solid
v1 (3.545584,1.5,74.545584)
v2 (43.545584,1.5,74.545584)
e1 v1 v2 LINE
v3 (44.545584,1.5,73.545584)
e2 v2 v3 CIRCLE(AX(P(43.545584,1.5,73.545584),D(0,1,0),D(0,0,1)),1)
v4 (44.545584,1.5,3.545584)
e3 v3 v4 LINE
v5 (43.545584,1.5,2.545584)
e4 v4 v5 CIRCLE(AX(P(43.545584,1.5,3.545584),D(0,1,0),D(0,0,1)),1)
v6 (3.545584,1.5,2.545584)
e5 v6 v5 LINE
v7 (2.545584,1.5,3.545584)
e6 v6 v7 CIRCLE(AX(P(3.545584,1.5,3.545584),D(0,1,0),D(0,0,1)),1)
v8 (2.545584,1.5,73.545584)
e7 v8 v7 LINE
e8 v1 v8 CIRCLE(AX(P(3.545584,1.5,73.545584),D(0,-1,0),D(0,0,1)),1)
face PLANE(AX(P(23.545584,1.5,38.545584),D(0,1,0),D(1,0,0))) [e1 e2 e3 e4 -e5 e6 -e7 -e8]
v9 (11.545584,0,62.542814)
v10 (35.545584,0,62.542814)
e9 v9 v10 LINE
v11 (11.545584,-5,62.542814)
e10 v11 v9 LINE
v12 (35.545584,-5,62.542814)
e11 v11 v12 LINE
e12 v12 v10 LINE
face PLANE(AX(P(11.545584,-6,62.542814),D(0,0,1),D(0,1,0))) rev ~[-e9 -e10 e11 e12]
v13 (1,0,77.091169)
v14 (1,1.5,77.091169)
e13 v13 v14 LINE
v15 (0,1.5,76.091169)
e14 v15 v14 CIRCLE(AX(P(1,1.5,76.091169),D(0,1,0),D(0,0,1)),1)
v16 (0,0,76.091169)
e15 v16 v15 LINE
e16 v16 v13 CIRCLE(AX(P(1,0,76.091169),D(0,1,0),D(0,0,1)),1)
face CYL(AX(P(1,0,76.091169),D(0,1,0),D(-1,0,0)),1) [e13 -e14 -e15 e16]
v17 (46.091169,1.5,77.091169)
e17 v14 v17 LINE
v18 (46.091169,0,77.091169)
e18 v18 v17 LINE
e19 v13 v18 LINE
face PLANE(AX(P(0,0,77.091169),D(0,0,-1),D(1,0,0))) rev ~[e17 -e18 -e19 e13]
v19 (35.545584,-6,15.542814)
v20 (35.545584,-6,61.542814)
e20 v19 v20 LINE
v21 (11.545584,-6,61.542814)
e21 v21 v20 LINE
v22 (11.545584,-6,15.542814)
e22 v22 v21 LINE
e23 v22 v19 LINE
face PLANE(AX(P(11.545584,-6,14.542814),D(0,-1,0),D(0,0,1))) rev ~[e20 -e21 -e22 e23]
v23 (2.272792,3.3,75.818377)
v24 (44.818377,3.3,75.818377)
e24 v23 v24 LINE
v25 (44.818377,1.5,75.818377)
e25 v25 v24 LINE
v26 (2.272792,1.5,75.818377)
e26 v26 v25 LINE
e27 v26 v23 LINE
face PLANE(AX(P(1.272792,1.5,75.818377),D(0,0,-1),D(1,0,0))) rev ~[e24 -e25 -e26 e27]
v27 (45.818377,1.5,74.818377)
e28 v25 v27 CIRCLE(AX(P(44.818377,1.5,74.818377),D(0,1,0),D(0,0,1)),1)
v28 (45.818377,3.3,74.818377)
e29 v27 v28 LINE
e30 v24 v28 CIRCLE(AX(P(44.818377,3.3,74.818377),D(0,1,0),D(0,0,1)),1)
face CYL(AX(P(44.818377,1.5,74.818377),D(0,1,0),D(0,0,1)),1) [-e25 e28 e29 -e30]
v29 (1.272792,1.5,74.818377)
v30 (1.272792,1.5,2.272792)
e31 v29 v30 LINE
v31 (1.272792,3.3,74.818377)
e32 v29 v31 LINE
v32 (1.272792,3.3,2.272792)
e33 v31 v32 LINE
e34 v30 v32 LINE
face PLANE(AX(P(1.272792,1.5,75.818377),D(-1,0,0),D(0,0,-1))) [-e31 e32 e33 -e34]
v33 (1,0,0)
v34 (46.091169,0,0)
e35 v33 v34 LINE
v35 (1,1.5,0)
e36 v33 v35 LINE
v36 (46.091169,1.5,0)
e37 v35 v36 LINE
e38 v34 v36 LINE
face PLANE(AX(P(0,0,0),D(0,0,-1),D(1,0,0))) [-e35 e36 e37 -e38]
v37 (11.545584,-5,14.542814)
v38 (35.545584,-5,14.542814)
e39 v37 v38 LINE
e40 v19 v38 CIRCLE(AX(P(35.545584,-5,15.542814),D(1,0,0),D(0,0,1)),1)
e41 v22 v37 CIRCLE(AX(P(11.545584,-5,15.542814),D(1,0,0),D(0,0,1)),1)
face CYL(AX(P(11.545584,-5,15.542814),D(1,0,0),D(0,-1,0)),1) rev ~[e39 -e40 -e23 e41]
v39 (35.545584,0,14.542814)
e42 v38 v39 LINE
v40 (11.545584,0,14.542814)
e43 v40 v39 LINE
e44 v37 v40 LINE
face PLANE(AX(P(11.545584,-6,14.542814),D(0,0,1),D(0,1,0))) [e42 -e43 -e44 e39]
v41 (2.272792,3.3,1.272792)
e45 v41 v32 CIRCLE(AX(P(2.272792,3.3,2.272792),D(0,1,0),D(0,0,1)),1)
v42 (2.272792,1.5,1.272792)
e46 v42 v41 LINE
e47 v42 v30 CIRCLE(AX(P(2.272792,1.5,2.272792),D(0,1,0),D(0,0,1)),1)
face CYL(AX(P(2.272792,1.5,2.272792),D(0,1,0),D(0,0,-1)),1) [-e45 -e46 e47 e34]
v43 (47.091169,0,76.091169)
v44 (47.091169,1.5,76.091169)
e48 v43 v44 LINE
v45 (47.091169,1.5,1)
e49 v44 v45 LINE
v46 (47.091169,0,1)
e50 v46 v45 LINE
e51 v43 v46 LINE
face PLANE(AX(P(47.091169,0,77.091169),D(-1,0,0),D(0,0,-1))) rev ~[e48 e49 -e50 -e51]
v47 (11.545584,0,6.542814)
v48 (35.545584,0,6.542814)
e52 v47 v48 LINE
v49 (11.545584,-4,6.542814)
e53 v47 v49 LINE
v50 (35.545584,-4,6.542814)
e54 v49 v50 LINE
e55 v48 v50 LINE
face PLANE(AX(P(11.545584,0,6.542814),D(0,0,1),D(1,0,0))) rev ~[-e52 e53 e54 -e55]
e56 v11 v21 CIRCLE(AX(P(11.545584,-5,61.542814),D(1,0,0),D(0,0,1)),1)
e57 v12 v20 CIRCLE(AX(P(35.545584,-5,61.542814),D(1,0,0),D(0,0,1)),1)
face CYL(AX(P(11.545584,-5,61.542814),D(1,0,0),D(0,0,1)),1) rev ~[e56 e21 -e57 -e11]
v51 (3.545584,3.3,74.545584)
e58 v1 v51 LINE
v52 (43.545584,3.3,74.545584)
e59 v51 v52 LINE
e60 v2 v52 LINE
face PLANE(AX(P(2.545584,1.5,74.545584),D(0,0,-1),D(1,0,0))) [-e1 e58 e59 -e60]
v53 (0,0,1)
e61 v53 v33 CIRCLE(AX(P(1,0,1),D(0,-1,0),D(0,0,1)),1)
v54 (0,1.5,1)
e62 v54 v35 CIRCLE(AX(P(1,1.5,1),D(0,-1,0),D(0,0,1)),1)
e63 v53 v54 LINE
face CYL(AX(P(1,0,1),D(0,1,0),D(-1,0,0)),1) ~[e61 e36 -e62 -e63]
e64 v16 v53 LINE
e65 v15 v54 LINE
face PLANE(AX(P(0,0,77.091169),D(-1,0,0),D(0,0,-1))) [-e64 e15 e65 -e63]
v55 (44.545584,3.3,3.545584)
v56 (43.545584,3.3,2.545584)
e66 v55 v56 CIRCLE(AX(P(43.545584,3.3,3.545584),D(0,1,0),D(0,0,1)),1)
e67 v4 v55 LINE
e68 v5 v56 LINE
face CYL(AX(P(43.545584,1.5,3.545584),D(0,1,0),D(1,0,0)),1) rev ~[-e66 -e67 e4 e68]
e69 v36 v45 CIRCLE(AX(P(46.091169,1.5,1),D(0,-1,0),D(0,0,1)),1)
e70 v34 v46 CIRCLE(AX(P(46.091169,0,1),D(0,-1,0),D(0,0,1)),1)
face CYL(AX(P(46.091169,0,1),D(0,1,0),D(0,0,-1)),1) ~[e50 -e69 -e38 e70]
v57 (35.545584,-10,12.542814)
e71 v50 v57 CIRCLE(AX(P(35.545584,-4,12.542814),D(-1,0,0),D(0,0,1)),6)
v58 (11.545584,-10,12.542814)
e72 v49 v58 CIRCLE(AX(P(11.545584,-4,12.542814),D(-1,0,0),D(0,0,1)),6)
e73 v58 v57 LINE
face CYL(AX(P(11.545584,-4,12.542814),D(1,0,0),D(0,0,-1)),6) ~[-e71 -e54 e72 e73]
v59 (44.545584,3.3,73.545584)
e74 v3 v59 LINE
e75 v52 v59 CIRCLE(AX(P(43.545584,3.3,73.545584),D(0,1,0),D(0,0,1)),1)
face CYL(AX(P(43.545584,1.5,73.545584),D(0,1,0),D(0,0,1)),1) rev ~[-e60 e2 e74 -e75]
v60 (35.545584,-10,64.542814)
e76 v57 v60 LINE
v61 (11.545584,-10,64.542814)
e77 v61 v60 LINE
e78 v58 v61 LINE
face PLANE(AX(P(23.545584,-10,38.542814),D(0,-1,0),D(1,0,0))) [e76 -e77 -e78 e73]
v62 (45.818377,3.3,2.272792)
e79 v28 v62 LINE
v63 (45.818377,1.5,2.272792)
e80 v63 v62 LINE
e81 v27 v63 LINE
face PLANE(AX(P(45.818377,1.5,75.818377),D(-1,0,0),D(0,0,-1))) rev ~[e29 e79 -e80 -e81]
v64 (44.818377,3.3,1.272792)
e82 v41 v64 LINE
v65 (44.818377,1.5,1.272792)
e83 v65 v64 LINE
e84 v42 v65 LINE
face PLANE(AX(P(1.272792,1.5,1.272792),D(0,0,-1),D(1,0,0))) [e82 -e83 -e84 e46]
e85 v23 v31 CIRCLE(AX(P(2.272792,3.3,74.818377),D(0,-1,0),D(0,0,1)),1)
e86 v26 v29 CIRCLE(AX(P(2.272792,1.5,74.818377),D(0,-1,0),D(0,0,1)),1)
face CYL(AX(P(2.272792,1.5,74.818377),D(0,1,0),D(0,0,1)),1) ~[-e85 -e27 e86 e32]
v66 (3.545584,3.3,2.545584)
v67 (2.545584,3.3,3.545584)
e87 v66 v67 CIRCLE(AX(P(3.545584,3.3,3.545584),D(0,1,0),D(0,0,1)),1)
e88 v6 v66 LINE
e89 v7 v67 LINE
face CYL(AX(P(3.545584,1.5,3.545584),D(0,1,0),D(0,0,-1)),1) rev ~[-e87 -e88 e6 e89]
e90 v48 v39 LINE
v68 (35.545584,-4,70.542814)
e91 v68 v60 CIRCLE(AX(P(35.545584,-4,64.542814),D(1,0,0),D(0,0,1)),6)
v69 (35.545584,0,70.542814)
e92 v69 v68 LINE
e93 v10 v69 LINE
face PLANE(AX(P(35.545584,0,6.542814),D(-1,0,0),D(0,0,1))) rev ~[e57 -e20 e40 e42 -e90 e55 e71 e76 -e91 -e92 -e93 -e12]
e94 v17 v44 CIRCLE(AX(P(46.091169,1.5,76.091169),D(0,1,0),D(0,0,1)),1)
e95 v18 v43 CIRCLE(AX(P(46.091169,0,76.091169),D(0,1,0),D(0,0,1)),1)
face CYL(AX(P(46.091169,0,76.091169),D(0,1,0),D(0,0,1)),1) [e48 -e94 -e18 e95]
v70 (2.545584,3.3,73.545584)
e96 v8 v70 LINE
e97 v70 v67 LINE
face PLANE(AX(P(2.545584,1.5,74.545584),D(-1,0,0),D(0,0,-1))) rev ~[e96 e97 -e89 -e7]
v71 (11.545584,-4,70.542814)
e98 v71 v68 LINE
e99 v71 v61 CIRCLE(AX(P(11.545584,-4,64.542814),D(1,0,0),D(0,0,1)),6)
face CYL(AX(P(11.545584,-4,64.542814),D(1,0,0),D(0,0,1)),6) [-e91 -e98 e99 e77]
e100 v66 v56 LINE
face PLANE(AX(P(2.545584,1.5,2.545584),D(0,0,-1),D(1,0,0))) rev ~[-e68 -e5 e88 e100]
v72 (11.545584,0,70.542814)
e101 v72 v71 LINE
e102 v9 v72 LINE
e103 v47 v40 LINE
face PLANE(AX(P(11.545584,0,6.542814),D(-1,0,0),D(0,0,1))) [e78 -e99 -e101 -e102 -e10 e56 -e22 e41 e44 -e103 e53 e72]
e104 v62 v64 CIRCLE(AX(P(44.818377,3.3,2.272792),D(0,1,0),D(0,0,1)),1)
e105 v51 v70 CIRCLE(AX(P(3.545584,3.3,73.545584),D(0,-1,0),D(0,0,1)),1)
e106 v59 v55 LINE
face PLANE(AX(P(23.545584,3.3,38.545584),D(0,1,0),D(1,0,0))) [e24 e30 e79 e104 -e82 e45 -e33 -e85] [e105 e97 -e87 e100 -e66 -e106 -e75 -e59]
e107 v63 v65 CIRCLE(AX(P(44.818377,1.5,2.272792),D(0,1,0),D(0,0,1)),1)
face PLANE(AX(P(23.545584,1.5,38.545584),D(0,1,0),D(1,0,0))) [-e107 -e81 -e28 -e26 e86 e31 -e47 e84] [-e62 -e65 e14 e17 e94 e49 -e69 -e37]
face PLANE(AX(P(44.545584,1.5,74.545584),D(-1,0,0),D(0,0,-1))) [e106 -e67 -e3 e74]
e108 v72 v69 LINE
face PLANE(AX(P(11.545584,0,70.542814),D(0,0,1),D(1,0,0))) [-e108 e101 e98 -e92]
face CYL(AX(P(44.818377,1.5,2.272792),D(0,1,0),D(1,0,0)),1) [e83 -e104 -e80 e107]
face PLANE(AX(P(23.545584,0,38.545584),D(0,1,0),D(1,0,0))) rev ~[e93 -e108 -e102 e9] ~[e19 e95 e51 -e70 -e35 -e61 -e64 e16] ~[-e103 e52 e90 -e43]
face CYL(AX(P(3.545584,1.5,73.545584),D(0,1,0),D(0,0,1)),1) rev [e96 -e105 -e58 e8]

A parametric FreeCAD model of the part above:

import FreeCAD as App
import Part
import Sketcher


def edges_at(feature, points):
    """Names of the edges that pass closest to the given points."""
    edges = feature.Shape.Edges
    near = lambda p: min(range(len(edges)), key=lambda i: edges[i].distToShape(Part.Vertex(*p))[0])
    return sorted({f"Edge{near(p) + 1}" for p in points})

doc = App.newDocument("Part")
body = doc.addObject("PartDesign::Body", "Body")

sketch1 = body.newObject("Sketcher::SketchObject", "Sketch")
sketch1.AttachmentSupport = (doc.getObject("XZ_Plane"), [""])
sketch1.MapMode = "FlatFace"
sketch1.addGeometry([
    Part.LineSegment(App.Vector(0, 0, 0), App.Vector(0, 77, 0)),
    Part.LineSegment(App.Vector(0, 77, 0), App.Vector(47, 77, 0)),
    Part.LineSegment(App.Vector(47, 77, 0), App.Vector(47, 0, 0)),
    Part.LineSegment(App.Vector(47, 0, 0), App.Vector(0, 0, 0)),
], False)
sketch1.addConstraint([
    Sketcher.Constraint("Coincident", 0, 2, 1, 1),
    Sketcher.Constraint("Coincident", 1, 2, 2, 1),
    Sketcher.Constraint("Coincident", 2, 2, 3, 1),
    Sketcher.Constraint("Coincident", 3, 2, 0, 1),
    Sketcher.Constraint("Vertical", 0),
    Sketcher.Constraint("Horizontal", 1),
    Sketcher.Constraint("Vertical", 2),
    Sketcher.Constraint("Horizontal", 3),
    Sketcher.Constraint("Coincident", 3, 2, -1, 1),
    Sketcher.Constraint("DistanceX", 1, 1, 1, 2, 47.091169),
    Sketcher.Constraint("DistanceY", 0, 1, 0, 2, 77.091169),
])
pad1 = body.newObject("PartDesign::Pad", "Pad")
pad1.Profile = sketch1
pad1.Length = 1.5
pad1.Reversed = True

sketch2 = body.newObject("Sketcher::SketchObject", "Sketch001")
sketch2.AttachmentSupport = (doc.getObject("XZ_Plane"), [""])
sketch2.MapMode = "FlatFace"
sketch2.AttachmentOffset = App.Placement(App.Vector(0, 0, -1.5), App.Rotation())
sketch2.addGeometry([
    Part.LineSegment(App.Vector(1, 1, 0), App.Vector(1, 76, 0)),
    Part.LineSegment(App.Vector(1, 76, 0), App.Vector(46, 76, 0)),
    Part.LineSegment(App.Vector(46, 76, 0), App.Vector(46, 1, 0)),
    Part.LineSegment(App.Vector(46, 1, 0), App.Vector(1, 1, 0)),
    Part.LineSegment(App.Vector(45, 75, 0), App.Vector(3, 75, 0)),
    Part.LineSegment(App.Vector(3, 75, 0), App.Vector(3, 3, 0)),
    Part.LineSegment(App.Vector(3, 3, 0), App.Vector(45, 3, 0)),
    Part.LineSegment(App.Vector(45, 3, 0), App.Vector(45, 75, 0)),
], False)
sketch2.addConstraint([
    Sketcher.Constraint("Coincident", 0, 2, 1, 1),
    Sketcher.Constraint("Coincident", 1, 2, 2, 1),
    Sketcher.Constraint("Coincident", 2, 2, 3, 1),
    Sketcher.Constraint("Coincident", 3, 2, 0, 1),
    Sketcher.Constraint("Coincident", 4, 2, 5, 1),
    Sketcher.Constraint("Coincident", 5, 2, 6, 1),
    Sketcher.Constraint("Coincident", 6, 2, 7, 1),
    Sketcher.Constraint("Coincident", 7, 2, 4, 1),
    Sketcher.Constraint("Vertical", 0),
    Sketcher.Constraint("Horizontal", 1),
    Sketcher.Constraint("Vertical", 2),
    Sketcher.Constraint("Horizontal", 3),
    Sketcher.Constraint("Horizontal", 4),
    Sketcher.Constraint("Vertical", 5),
    Sketcher.Constraint("Horizontal", 6),
    Sketcher.Constraint("Vertical", 7),
    Sketcher.Constraint("DistanceX", 4, 2, 4, 1, 42.0),
    Sketcher.Constraint("DistanceY", 5, 2, 5, 1, 72.0),
    Sketcher.Constraint("DistanceX", 1, 1, 1, 2, 44.545584),
    Sketcher.Constraint("DistanceY", 0, 1, 0, 2, 74.545584),
    Sketcher.Constraint("DistanceX", -1, 1, 0, 2, 1.272792),
    Sketcher.Constraint("DistanceY", -1, 1, 0, 2, 75.818377),
    Sketcher.Constraint("DistanceX", -1, 1, 4, 2, 2.545584),
    Sketcher.Constraint("DistanceY", -1, 1, 4, 2, 74.545584),
])
pad2 = body.newObject("PartDesign::Pad", "Pad001")
pad2.Profile = sketch2
pad2.Length = 1.8
pad2.Reversed = True
doc.recompute()

fillet = body.newObject("PartDesign::Fillet", "Fillet")
fillet.Base = (pad2, edges_at(pad2, [
    (1.273, 2.4, 1.273),
    (1.273, 2.4, 75.818),
    (45.818, 2.4, 75.818),
    (45.818, 2.4, 1.273),
    (44.546, 2.4, 74.546),
    (44.546, 2.4, 2.546),
    (2.546, 2.4, 2.546),
    (2.546, 2.4, 74.546),
    (0, 0.75, 0),
    (47.091, 0.75, 0),
    (47.091, 0.75, 77.091),
    (0, 0.75, 77.091),
]))
fillet.Radius = 1

sketch3 = body.newObject("Sketcher::SketchObject", "Sketch002")
sketch3.AttachmentSupport = (doc.getObject("XZ_Plane"), [""])
sketch3.MapMode = "FlatFace"
sketch3.addGeometry([
    Part.LineSegment(App.Vector(12, 71, 0), App.Vector(12, 7, 0)),
    Part.LineSegment(App.Vector(12, 7, 0), App.Vector(36, 7, 0)),
    Part.LineSegment(App.Vector(36, 7, 0), App.Vector(36, 71, 0)),
    Part.LineSegment(App.Vector(36, 71, 0), App.Vector(12, 71, 0)),
], False)
sketch3.addConstraint([
    Sketcher.Constraint("Coincident", 0, 2, 1, 1),
    Sketcher.Constraint("Coincident", 1, 2, 2, 1),
    Sketcher.Constraint("Coincident", 2, 2, 3, 1),
    Sketcher.Constraint("Coincident", 3, 2, 0, 1),
    Sketcher.Constraint("Vertical", 0),
    Sketcher.Constraint("Horizontal", 1),
    Sketcher.Constraint("Vertical", 2),
    Sketcher.Constraint("Horizontal", 3),
    Sketcher.Constraint("DistanceX", 1, 1, 1, 2, 24.0),
    Sketcher.Constraint("DistanceY", 0, 2, 0, 1, 64.0),
    Sketcher.Constraint("DistanceX", -1, 1, 0, 2, 11.545584),
    Sketcher.Constraint("DistanceY", -1, 1, 0, 2, 6.542814),
])
pad3 = body.newObject("PartDesign::Pad", "Pad002")
pad3.Profile = sketch3
pad3.Length = 10

sketch4 = body.newObject("Sketcher::SketchObject", "Sketch003")
sketch4.AttachmentSupport = (doc.getObject("YZ_Plane"), [""])
sketch4.MapMode = "FlatFace"
sketch4.AttachmentOffset = App.Placement(App.Vector(0, 0, 11.545584), App.Rotation())
sketch4.addGeometry([
    Part.LineSegment(App.Vector(0, 15, 0), App.Vector(-6, 15, 0)),
    Part.LineSegment(App.Vector(-6, 15, 0), App.Vector(-6, 63, 0)),
    Part.LineSegment(App.Vector(-6, 63, 0), App.Vector(0, 63, 0)),
    Part.LineSegment(App.Vector(0, 63, 0), App.Vector(0, 15, 0)),
], False)
sketch4.addConstraint([
    Sketcher.Constraint("Coincident", 0, 2, 1, 1),
    Sketcher.Constraint("Coincident", 1, 2, 2, 1),
    Sketcher.Constraint("Coincident", 2, 2, 3, 1),
    Sketcher.Constraint("Coincident", 3, 2, 0, 1),
    Sketcher.Constraint("Horizontal", 0),
    Sketcher.Constraint("Vertical", 1),
    Sketcher.Constraint("Horizontal", 2),
    Sketcher.Constraint("Vertical", 3),
    Sketcher.Constraint("PointOnObject", 2, 2, -2),
    Sketcher.Constraint("DistanceX", 0, 2, 0, 1, 6.0),
    Sketcher.Constraint("DistanceY", 1, 1, 1, 2, 48.0),
    Sketcher.Constraint("DistanceY", -1, 1, 0, 2, 14.542814),
])
pocket1 = body.newObject("PartDesign::Pocket", "Pocket")
pocket1.Profile = sketch4
pocket1.Length = 24
pocket1.Reversed = True
doc.recompute()

fillet2 = body.newObject("PartDesign::Fillet", "Fillet001")
fillet2.Base = (pocket1, edges_at(pocket1, [(23.546, -10, 70.543), (23.546, -10, 6.543)]))
fillet2.Radius = 6
doc.recompute()

fillet3 = body.newObject("PartDesign::Fillet", "Fillet002")
fillet3.Base = (fillet2, edges_at(fillet2, [(23.546, -6, 14.543), (23.546, -6, 62.543)]))
fillet3.Radius = 1

doc.recompute()
